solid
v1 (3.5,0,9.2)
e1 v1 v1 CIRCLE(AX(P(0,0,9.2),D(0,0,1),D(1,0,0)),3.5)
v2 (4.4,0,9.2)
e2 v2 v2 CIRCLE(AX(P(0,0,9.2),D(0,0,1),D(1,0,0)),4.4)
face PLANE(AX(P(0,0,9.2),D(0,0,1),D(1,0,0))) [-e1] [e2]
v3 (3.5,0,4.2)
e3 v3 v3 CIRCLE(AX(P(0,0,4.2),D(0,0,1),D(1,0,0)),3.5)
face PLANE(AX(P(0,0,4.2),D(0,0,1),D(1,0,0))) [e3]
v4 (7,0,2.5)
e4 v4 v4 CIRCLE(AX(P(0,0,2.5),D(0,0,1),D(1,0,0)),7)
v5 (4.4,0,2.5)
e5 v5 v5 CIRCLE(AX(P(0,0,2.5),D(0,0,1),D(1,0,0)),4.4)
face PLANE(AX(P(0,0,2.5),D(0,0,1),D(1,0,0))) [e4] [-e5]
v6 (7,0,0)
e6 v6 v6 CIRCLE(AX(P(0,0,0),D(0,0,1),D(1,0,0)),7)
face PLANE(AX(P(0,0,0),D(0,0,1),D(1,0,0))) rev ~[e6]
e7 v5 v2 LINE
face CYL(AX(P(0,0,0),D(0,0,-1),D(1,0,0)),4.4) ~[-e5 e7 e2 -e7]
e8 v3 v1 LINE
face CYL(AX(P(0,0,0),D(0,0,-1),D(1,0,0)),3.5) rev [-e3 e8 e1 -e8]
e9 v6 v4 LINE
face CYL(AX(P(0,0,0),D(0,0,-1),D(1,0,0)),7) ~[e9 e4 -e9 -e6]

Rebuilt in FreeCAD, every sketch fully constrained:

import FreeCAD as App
import Part
import Sketcher

V = App.Vector

doc = App.newDocument("Part")
params = doc.addObject("Spreadsheet::Sheet", "Params")
for row, (alias, value) in enumerate([
    ("sketch1_diameter", "14 mm"),
    ("sketch1_diameter2", "8.8 mm"),
    ("pad1_length", "2.5 mm"),
    ("sketch2_diameter", "7 mm"),
    ("sketch2_diameter2", "8.8 mm"),
    ("pad2_length", "9.2 mm"),
    ("sketch3_diameter", "7 mm"),
    ("pad3_length", "4.2 mm"),
], start=1):
    params.set(f"A{row}", alias)
    params.set(f"B{row}", "=" + value)
    params.setAlias(f"B{row}", alias)

body = doc.addObject("PartDesign::Body", "Body")

sketch1 = doc.addObject("Sketcher::SketchObject", "Sketch")
body.addObject(sketch1)
sketch1.AttachmentSupport = (doc.XY_Plane, [""])
sketch1.MapMode = "FlatFace"
sketch1.addGeometry(Part.Circle(V(0, 0, 0), V(0, 0, 1), 7), False)
sketch1.addGeometry(Part.Circle(V(0, 0, 0), V(0, 0, 1), 4.4), False)
sketch1.addConstraint(Sketcher.Constraint("Coincident", 0, 3, -1, 1))
sketch1.addConstraint(Sketcher.Constraint("Coincident", 1, 3, -1, 1))
sketch1.addConstraint(Sketcher.Constraint("Diameter", 0, 14.0))
sketch1.addConstraint(Sketcher.Constraint("Diameter", 1, 8.8))
sketch1.setExpression("Constraints[2]", "Params.sketch1_diameter")
sketch1.setExpression("Constraints[3]", "Params.sketch1_diameter2")
pad1 = doc.addObject("PartDesign::Pad", "Pad")
body.addObject(pad1)
pad1.Profile = sketch1
pad1.setExpression("Length", "Params.pad1_length")

sketch2 = doc.addObject("Sketcher::SketchObject", "Sketch001")
body.addObject(sketch2)
sketch2.AttachmentSupport = (doc.XY_Plane, [""])
sketch2.MapMode = "FlatFace"
sketch2.addGeometry(Part.Circle(V(0, 0, 0), V(0, 0, 1), 4.4), False)
sketch2.addGeometry(Part.Circle(V(0, 0, 0), V(0, 0, 1), 3.5), False)
sketch2.addConstraint(Sketcher.Constraint("Coincident", 0, 3, -1, 1))
sketch2.addConstraint(Sketcher.Constraint("Coincident", 1, 3, -1, 1))
sketch2.addConstraint(Sketcher.Constraint("Diameter", 1, 7.0))
sketch2.addConstraint(Sketcher.Constraint("Diameter", 0, 8.8))
sketch2.setExpression("Constraints[2]", "Params.sketch2_diameter")
sketch2.setExpression("Constraints[3]", "Params.sketch2_diameter2")
pad2 = doc.addObject("PartDesign::Pad", "Pad001")
body.addObject(pad2)
pad2.Profile = sketch2
pad2.setExpression("Length", "Params.pad2_length")

sketch3 = doc.addObject("Sketcher::SketchObject", "Sketch002")
body.addObject(sketch3)
sketch3.AttachmentSupport = (doc.XY_Plane, [""])
sketch3.MapMode = "FlatFace"
sketch3.addGeometry(Part.Circle(V(0, 0, 0), V(0, 0, 1), 3.5), False)
sketch3.addConstraint(Sketcher.Constraint("Coincident", 0, 3, -1, 1))
sketch3.addConstraint(Sketcher.Constraint("Diameter", 0, 7.0))
sketch3.setExpression("Constraints[1]", "Params.sketch3_diameter")
pad3 = doc.addObject("PartDesign::Pad", "Pad002")
body.addObject(pad3)
pad3.Profile = sketch3
pad3.setExpression("Length", "Params.pad3_length")

doc.recompute()
